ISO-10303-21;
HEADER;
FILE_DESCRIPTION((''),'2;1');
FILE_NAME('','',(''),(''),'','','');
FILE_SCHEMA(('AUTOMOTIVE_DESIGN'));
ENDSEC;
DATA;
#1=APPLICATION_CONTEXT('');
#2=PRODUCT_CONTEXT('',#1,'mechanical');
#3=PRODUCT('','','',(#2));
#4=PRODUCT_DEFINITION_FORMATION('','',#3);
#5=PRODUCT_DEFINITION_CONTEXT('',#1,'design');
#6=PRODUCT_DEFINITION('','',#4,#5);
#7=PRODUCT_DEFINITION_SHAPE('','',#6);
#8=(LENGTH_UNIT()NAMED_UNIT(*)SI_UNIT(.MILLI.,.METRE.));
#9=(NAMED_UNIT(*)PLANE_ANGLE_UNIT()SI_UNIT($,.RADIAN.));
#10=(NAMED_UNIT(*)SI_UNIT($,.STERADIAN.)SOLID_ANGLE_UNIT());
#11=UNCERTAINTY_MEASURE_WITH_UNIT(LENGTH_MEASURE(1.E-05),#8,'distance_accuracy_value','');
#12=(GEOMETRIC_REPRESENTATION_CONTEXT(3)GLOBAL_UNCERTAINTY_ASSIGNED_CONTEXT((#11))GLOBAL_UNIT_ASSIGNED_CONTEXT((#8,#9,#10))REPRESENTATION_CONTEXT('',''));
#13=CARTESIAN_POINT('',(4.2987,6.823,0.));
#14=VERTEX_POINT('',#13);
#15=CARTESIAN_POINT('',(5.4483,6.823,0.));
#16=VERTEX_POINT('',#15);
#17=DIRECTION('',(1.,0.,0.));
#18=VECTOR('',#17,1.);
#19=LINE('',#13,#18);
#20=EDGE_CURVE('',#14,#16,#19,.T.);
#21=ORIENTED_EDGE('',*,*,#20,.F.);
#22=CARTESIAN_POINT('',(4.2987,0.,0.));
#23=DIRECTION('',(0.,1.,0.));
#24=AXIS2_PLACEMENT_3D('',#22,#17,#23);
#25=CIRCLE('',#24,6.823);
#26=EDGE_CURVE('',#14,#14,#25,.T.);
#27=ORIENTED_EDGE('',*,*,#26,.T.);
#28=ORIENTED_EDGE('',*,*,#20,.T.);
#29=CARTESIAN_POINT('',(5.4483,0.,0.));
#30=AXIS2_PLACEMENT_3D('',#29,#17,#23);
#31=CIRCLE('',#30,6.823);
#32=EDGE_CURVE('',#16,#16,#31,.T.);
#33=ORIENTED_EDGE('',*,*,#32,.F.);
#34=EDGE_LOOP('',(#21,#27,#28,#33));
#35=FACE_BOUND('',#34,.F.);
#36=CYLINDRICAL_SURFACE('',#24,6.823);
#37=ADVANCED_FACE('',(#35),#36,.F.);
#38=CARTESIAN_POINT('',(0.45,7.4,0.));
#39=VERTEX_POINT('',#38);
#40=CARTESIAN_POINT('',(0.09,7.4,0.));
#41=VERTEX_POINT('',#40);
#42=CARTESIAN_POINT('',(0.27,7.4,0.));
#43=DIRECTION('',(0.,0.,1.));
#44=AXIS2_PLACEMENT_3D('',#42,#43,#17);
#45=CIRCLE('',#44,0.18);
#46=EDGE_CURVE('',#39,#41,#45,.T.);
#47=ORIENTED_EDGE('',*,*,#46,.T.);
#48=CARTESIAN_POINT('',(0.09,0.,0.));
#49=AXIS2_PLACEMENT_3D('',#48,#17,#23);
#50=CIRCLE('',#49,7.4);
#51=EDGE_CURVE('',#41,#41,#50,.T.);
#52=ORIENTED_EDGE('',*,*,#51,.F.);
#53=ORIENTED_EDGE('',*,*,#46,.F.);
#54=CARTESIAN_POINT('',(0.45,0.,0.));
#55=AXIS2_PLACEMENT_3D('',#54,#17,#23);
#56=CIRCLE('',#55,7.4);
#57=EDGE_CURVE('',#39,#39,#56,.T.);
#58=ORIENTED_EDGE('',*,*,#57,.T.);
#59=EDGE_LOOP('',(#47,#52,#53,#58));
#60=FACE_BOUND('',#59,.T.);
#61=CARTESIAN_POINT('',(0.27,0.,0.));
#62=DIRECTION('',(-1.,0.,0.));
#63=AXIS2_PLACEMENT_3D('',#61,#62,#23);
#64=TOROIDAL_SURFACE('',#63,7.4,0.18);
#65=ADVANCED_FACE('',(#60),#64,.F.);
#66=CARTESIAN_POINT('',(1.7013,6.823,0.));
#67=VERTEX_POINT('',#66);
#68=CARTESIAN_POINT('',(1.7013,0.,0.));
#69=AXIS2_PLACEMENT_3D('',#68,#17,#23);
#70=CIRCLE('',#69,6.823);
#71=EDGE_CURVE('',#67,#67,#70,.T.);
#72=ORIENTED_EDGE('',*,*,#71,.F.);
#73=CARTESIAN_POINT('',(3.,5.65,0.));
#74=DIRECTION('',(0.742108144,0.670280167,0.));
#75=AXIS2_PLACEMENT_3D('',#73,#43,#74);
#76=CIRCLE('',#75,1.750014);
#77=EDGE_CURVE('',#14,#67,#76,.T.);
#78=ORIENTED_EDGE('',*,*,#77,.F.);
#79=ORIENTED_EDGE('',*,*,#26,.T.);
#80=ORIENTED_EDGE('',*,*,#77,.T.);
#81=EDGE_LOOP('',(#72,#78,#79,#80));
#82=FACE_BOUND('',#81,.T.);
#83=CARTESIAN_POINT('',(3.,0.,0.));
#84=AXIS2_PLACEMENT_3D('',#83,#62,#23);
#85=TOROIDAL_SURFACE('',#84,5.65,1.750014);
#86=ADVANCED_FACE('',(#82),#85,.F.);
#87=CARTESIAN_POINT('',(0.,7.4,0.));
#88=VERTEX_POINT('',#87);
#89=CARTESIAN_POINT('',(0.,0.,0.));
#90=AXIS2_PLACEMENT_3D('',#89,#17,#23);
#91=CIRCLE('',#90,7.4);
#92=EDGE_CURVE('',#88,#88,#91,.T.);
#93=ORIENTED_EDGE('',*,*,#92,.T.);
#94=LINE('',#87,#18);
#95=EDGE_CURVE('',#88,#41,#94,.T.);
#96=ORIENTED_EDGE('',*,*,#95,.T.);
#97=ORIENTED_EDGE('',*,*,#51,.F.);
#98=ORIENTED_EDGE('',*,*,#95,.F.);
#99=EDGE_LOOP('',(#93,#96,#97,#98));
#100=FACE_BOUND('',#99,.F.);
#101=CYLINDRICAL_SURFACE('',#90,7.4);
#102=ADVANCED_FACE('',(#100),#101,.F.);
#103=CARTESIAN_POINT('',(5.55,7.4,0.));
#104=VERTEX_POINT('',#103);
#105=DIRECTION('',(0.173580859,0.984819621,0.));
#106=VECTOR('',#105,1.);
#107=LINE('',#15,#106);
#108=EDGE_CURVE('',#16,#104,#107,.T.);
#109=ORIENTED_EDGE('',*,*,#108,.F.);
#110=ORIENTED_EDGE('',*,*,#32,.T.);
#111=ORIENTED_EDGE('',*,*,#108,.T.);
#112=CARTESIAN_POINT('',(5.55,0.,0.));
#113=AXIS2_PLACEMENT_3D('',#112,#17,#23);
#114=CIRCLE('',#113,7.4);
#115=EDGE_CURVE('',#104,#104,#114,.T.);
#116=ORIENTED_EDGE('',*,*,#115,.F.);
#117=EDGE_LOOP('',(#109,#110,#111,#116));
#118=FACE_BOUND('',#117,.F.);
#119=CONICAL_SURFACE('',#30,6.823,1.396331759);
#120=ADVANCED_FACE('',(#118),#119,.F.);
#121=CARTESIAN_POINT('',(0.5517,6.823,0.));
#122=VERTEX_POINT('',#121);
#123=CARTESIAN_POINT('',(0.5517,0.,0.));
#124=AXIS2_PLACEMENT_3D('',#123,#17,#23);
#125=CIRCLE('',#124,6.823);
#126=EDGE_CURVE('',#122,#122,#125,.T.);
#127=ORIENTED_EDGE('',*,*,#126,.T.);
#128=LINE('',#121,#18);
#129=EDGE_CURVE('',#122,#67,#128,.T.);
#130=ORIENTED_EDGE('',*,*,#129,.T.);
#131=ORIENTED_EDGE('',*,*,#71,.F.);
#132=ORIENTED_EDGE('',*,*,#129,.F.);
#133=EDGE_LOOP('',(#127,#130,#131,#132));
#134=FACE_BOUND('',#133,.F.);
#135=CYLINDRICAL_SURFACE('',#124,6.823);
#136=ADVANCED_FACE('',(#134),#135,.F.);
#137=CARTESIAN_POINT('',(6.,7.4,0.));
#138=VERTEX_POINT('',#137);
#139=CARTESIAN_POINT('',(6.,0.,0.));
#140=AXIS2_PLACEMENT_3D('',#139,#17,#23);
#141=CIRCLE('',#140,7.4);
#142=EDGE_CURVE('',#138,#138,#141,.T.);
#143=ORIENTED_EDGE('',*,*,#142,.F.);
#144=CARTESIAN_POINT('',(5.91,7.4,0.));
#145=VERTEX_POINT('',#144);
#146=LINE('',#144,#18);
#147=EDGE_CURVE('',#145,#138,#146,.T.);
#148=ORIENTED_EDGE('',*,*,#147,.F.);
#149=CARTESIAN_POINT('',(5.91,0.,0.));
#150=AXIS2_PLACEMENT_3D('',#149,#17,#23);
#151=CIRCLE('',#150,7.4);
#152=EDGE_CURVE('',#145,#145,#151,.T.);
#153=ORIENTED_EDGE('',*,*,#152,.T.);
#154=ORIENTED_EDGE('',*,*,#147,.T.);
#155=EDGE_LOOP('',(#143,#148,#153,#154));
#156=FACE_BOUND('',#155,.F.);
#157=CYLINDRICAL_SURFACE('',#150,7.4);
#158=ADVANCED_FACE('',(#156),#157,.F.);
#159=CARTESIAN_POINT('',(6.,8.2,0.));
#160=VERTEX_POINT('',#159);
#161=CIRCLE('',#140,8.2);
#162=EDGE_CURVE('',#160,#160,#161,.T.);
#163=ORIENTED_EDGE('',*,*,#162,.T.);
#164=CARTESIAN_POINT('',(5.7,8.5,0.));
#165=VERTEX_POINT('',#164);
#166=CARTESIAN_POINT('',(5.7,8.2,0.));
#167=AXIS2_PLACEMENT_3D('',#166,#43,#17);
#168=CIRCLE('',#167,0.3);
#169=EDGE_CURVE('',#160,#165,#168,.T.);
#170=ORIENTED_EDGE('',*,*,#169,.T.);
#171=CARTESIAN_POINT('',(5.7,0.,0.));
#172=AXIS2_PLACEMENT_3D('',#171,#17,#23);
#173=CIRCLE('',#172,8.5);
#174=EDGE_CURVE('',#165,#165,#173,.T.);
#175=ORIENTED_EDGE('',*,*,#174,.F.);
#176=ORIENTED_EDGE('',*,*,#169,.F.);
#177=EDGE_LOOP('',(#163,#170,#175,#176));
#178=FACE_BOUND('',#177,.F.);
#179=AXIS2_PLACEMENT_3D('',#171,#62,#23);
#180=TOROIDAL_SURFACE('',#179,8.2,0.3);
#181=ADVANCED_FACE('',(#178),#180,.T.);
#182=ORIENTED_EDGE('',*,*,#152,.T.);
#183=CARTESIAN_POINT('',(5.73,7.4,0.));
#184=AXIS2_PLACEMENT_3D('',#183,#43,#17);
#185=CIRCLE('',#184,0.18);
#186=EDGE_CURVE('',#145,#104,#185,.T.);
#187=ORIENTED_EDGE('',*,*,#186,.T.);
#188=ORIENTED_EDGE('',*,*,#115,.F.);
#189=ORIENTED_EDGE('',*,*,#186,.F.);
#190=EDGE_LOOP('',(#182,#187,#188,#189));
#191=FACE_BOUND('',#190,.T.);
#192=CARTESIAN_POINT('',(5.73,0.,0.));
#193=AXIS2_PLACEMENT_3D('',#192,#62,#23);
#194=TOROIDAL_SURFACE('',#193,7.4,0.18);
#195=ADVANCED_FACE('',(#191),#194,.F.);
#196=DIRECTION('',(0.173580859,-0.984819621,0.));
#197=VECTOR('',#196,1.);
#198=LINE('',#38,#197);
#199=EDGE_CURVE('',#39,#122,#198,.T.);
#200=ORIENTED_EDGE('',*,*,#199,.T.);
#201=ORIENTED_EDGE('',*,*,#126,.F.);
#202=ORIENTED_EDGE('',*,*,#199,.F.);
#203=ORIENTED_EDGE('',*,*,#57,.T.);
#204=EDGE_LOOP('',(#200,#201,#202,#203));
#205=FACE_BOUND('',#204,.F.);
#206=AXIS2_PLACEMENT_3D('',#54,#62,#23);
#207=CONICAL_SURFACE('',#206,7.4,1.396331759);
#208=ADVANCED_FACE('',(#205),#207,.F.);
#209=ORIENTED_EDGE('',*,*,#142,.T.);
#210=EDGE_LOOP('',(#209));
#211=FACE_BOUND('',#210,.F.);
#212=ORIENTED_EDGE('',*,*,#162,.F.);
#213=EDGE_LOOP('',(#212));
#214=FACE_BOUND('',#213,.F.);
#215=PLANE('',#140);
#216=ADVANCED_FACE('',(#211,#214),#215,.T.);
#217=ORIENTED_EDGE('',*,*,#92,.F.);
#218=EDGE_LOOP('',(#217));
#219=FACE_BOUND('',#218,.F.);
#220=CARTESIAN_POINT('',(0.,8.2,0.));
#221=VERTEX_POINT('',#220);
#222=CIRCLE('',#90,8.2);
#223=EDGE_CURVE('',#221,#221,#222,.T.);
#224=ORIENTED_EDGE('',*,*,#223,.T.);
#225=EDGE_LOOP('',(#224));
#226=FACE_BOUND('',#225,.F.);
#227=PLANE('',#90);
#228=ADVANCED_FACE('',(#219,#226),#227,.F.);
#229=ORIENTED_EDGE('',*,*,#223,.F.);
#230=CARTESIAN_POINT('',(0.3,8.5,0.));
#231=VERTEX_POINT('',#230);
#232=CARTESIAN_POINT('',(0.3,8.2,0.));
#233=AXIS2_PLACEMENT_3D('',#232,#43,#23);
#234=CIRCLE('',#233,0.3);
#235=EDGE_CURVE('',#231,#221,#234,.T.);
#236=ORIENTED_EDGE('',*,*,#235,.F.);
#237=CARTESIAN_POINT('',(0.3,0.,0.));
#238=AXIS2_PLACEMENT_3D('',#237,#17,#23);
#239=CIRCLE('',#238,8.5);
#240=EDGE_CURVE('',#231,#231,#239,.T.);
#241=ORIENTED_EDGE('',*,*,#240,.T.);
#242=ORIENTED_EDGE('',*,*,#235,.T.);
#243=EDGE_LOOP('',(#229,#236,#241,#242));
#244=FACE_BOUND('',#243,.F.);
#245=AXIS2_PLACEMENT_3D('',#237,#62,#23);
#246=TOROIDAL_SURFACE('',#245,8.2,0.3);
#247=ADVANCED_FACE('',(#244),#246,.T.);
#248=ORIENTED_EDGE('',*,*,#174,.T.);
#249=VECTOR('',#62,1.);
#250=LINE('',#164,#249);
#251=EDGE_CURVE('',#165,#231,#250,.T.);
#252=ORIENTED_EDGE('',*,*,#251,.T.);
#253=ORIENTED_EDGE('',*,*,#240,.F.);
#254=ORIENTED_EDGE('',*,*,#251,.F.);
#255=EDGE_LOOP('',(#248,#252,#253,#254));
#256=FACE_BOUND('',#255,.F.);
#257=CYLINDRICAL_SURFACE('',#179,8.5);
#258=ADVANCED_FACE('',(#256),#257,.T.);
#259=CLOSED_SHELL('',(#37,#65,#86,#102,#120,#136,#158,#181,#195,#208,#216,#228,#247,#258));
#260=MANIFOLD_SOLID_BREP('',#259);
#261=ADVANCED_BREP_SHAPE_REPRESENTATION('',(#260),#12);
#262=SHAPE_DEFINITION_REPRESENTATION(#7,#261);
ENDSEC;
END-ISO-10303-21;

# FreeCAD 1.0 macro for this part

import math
import FreeCAD as App
import Part
import Sketcher

V = App.Vector

doc = App.newDocument("Part")
body = doc.addObject("PartDesign::Body", "Body")

# Sketch on XY plane
sketch1 = body.newObject("Sketcher::SketchObject", "Sketch")
sketch1.AttachmentSupport = (doc.getObject("XY_Plane"), [""])
sketch1.MapMode = "FlatFace"
sketch1.addGeometry(Part.ArcOfCircle(Part.Circle(V(0.3, 8.2, 0), V(0, 0, 1), 0.3), math.radians(90), math.radians(180)), False)
sketch1.addGeometry(Part.LineSegment(V(0, 8.2, 0), V(0, 7.4, 0)), False)
sketch1.addGeometry(Part.LineSegment(V(0, 7.4, 0), V(0.09, 7.4, 0)), False)
sketch1.addGeometry(Part.ArcOfCircle(Part.Circle(V(0.27, 7.4, 0), V(0, 0, 1), 0.18), math.radians(0), math.radians(180)), False)
sketch1.addGeometry(Part.LineSegment(V(0.45, 7.4, 0), V(0.55, 6.82, 0)), False)
sketch1.addGeometry(Part.LineSegment(V(0.55, 6.82, 0), V(1.7, 6.82, 0)), False)
sketch1.addGeometry(Part.ArcOfCircle(Part.Circle(V(3, 5.65, 0), V(0, 0, 1), 1.75), math.radians(42), math.radians(138)), False)
sketch1.addGeometry(Part.LineSegment(V(4.3, 6.82, 0), V(5.45, 6.82, 0)), False)
sketch1.addGeometry(Part.LineSegment(V(5.45, 6.82, 0), V(5.55, 7.4, 0)), False)
sketch1.addGeometry(Part.ArcOfCircle(Part.Circle(V(5.73, 7.4, 0), V(0, 0, 1), 0.18), math.radians(0), math.radians(180)), False)
sketch1.addGeometry(Part.LineSegment(V(5.91, 7.4, 0), V(6, 7.4, 0)), False)
sketch1.addGeometry(Part.LineSegment(V(6, 7.4, 0), V(6, 8.2, 0)), False)
sketch1.addGeometry(Part.ArcOfCircle(Part.Circle(V(5.7, 8.2, 0), V(0, 0, 1), 0.3), math.radians(0), math.radians(90)), False)
sketch1.addGeometry(Part.LineSegment(V(5.7, 8.5, 0), V(0.3, 8.5, 0)), False)
sketch1.addConstraint(Sketcher.Constraint("Tangent", 0, 2, 1, 1))
sketch1.addConstraint(Sketcher.Constraint("Coincident", 1, 2, 2, 1))
sketch1.addConstraint(Sketcher.Constraint("Coincident", 2, 2, 3, 2))
sketch1.addConstraint(Sketcher.Constraint("Coincident", 3, 1, 4, 1))
sketch1.addConstraint(Sketcher.Constraint("Coincident", 4, 2, 5, 1))
sketch1.addConstraint(Sketcher.Constraint("Coincident", 5, 2, 6, 2))
sketch1.addConstraint(Sketcher.Constraint("Coincident", 6, 1, 7, 1))
sketch1.addConstraint(Sketcher.Constraint("Coincident", 7, 2, 8, 1))
sketch1.addConstraint(Sketcher.Constraint("Coincident", 8, 2, 9, 2))
sketch1.addConstraint(Sketcher.Constraint("Coincident", 9, 1, 10, 1))
sketch1.addConstraint(Sketcher.Constraint("Coincident", 10, 2, 11, 1))
sketch1.addConstraint(Sketcher.Constraint("Tangent", 11, 2, 12, 1))
sketch1.addConstraint(Sketcher.Constraint("Tangent", 12, 2, 13, 1))
sketch1.addConstraint(Sketcher.Constraint("Tangent", 13, 2, 0, 1))
sketch1.addConstraint(Sketcher.Constraint("Vertical", 1))
sketch1.addConstraint(Sketcher.Constraint("Horizontal", 2))
sketch1.addConstraint(Sketcher.Constraint("Horizontal", 5))
sketch1.addConstraint(Sketcher.Constraint("Horizontal", 7))
sketch1.addConstraint(Sketcher.Constraint("Horizontal", 10))
sketch1.addConstraint(Sketcher.Constraint("Vertical", 11))
sketch1.addConstraint(Sketcher.Constraint("Horizontal", 13))
sketch1.addConstraint(Sketcher.Constraint("Equal", 3, 9))
sketch1.addConstraint(Sketcher.Constraint("Equal", 0, 12))
sketch1.addConstraint(Sketcher.Constraint("PointOnObject", 0, 2, -2))
sketch1.addConstraint(Sketcher.Constraint("Horizontal", 3, 3, 9, 3))
sketch1.addConstraint(Sketcher.Constraint("Horizontal", 9, 3, 1, 2))
sketch1.addConstraint(Sketcher.Constraint("Horizontal", 2, 2, 3, 1))
sketch1.addConstraint(Sketcher.Constraint("Horizontal", 5, 2, 6, 1))
sketch1.addConstraint(Sketcher.Constraint("Horizontal", 3, 1, 8, 2))
sketch1.addConstraint(Sketcher.Constraint("Horizontal", 8, 2, 9, 1))
sketch1.addConstraint(Sketcher.Constraint("Equal", 5, 7))
sketch1.addConstraint(Sketcher.Constraint("Equal", 2, 10))
sketch1.addConstraint(Sketcher.Constraint("Equal", 4, 8))
sketch1.addConstraint(Sketcher.Constraint("Radius", 0, 0.3))
sketch1.addConstraint(Sketcher.Constraint("Radius", 3, 0.18))
sketch1.addConstraint(Sketcher.Constraint("Radius", 6, 1.75))
sketch1.addConstraint(Sketcher.Constraint("DistanceX", 13, 2, 13, 1, 5.4))
sketch1.addConstraint(Sketcher.Constraint("DistanceY", 1, 2, 1, 1, 0.8))
sketch1.addConstraint(Sketcher.Constraint("DistanceX", 2, 1, 2, 2, 0.09))
sketch1.addConstraint(Sketcher.Constraint("DistanceY", -1, 1, 0, 3, 8.2))
sketch1.addConstraint(Sketcher.Constraint("DistanceY", -1, 1, 6, 3, 5.65))
sketch1.addConstraint(Sketcher.Constraint("Distance", 4, 0.586))
sketch1.addConstraint(Sketcher.Constraint("DistanceX", 5, 1, 5, 2, 1.1496))
revolution = body.newObject("PartDesign::Revolution", "Revolution")
revolution.Profile = sketch1
revolution.ReferenceAxis = (sketch1, ["H_Axis"])
revolution.Angle = 360

doc.recompute()
